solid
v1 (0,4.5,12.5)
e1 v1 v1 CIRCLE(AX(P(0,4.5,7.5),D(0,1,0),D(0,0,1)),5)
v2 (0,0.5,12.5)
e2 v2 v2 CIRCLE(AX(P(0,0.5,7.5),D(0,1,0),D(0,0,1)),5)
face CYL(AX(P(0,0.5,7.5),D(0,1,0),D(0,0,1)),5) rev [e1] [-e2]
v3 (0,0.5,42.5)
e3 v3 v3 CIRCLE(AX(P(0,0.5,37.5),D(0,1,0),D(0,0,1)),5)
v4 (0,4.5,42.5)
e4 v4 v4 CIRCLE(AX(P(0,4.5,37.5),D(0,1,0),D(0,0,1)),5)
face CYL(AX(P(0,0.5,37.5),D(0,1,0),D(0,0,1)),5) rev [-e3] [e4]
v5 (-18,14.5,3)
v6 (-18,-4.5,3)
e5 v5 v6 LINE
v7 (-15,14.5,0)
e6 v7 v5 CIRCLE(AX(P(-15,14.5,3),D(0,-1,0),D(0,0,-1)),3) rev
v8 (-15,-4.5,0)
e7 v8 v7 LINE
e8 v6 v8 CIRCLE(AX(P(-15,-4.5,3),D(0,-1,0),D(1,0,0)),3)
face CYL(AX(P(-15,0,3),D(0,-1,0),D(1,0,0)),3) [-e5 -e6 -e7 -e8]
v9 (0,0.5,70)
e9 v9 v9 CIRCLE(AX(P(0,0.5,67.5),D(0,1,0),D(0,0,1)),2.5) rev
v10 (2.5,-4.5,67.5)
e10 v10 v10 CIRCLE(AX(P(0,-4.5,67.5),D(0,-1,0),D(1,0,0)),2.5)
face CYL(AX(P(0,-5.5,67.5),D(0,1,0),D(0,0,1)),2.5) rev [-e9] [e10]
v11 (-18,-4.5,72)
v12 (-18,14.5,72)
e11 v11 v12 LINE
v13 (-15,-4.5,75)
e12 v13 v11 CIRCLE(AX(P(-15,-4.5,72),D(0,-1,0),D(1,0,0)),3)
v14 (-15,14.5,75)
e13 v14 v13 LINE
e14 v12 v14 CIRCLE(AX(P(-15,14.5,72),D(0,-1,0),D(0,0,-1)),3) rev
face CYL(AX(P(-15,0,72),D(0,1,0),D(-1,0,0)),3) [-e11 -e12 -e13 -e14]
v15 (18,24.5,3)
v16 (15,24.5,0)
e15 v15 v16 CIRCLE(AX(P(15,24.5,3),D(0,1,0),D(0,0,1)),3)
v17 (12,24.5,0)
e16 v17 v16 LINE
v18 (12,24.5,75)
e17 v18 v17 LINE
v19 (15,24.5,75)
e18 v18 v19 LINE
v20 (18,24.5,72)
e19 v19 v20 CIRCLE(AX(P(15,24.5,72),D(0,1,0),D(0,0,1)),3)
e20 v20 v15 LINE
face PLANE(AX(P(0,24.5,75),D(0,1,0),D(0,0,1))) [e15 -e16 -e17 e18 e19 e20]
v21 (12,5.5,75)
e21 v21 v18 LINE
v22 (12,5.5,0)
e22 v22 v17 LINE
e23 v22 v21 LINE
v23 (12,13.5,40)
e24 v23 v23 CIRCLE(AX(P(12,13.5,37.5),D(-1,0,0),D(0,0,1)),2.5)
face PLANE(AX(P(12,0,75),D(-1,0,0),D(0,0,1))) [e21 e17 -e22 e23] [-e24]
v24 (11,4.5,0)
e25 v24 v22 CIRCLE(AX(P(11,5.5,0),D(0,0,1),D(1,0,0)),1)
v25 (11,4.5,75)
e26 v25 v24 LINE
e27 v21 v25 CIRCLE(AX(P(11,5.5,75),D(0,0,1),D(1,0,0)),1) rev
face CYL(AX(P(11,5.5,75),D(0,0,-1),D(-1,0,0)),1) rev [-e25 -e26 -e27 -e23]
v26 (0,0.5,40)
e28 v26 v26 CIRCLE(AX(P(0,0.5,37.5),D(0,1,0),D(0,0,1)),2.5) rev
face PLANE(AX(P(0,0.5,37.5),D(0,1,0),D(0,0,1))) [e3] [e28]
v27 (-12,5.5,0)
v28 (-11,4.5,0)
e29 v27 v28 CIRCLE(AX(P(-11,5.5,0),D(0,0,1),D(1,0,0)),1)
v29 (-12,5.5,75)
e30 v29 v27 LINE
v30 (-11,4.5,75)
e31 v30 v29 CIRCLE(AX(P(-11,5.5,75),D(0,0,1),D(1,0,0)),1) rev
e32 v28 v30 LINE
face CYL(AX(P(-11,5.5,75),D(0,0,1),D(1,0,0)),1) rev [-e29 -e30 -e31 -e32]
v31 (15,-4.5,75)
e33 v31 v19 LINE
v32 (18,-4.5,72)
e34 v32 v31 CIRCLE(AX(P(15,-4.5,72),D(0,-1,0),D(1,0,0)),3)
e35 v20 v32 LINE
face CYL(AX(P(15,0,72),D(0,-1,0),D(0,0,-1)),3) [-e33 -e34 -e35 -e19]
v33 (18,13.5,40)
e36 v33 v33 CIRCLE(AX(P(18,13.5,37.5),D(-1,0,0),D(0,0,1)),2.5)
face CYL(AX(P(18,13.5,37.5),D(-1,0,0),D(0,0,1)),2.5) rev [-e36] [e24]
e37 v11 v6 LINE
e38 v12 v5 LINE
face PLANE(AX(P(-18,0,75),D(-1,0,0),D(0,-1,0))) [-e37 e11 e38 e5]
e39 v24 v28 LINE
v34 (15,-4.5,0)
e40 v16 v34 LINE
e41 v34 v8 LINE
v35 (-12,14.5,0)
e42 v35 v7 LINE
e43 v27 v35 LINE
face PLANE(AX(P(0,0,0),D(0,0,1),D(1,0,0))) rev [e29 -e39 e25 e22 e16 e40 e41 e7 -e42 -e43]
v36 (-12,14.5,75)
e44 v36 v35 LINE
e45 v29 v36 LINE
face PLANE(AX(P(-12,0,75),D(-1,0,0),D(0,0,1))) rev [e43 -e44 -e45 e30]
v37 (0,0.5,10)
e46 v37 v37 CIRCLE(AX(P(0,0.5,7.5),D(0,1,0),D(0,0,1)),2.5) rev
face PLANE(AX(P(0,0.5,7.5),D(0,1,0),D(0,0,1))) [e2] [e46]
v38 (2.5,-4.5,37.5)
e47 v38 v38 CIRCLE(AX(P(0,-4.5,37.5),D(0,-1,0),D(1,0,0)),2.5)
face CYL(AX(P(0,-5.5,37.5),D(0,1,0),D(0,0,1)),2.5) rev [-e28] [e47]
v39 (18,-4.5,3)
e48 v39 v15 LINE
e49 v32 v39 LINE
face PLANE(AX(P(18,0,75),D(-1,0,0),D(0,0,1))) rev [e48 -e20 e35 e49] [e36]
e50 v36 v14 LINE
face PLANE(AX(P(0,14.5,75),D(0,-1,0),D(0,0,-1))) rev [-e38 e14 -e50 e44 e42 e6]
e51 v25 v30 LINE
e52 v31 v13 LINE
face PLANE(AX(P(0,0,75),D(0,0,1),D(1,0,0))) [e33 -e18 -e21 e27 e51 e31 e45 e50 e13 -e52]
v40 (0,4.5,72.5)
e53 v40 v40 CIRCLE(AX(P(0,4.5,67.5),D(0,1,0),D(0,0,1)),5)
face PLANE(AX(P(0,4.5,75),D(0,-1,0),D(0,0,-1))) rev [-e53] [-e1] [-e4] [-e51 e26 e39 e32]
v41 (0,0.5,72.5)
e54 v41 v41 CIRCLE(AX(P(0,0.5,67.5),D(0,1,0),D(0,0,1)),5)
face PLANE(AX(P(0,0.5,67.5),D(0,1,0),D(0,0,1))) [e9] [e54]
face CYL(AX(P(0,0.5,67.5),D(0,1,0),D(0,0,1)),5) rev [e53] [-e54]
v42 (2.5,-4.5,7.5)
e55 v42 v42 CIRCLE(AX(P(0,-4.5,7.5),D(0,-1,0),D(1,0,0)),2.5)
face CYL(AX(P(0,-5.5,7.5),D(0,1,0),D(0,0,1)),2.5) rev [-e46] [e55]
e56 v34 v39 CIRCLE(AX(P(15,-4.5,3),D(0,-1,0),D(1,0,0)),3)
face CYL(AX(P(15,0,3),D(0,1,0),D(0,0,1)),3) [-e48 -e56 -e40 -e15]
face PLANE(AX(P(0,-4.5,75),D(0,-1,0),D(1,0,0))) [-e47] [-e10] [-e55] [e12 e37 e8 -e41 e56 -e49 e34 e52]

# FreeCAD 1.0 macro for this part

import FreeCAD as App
import Part
import Sketcher
from FreeCAD import Vector
Q = App.Units.Quantity


def edges_at(feature, points):
    """Names of the edges that pass closest to the given points."""
    edges = feature.Shape.Edges
    near = lambda p: min(range(len(edges)), key=lambda i: edges[i].distToShape(Part.Vertex(*p))[0])
    return sorted({f"Edge{near(p) + 1}" for p in points})

doc = App.newDocument("Part")
body = doc.addObject("PartDesign::Body", "Body")

# Sketch on XY plane
sketch1 = doc.addObject("Sketcher::SketchObject", "Sketch")
body.addObject(sketch1)
sketch1.AttachmentSupport = (doc.XY_Plane, [""])
sketch1.MapMode = "FlatFace"
sketch1.addGeometry(Part.LineSegment(Vector(-18, -4, 0), Vector(18, -4, 0)), False)
sketch1.addGeometry(Part.LineSegment(Vector(18, -4, 0), Vector(18, 24, 0)), False)
sketch1.addGeometry(Part.LineSegment(Vector(18, 24, 0), Vector(12, 24, 0)), False)
sketch1.addGeometry(Part.LineSegment(Vector(12, 24, 0), Vector(12, 4, 0)), False)
sketch1.addGeometry(Part.LineSegment(Vector(12, 4, 0), Vector(-12, 4, 0)), False)
sketch1.addGeometry(Part.LineSegment(Vector(-12, 4, 0), Vector(-12, 14, 0)), False)
sketch1.addGeometry(Part.LineSegment(Vector(-12, 14, 0), Vector(-18, 14, 0)), False)
sketch1.addGeometry(Part.LineSegment(Vector(-18, 14, 0), Vector(-18, -4, 0)), False)
sketch1.addConstraint(Sketcher.Constraint("Coincident", 0, 2, 1, 1))
sketch1.addConstraint(Sketcher.Constraint("Coincident", 1, 2, 2, 1))
sketch1.addConstraint(Sketcher.Constraint("Coincident", 2, 2, 3, 1))
sketch1.addConstraint(Sketcher.Constraint("Coincident", 3, 2, 4, 1))
sketch1.addConstraint(Sketcher.Constraint("Coincident", 4, 2, 5, 1))
sketch1.addConstraint(Sketcher.Constraint("Coincident", 5, 2, 6, 1))
sketch1.addConstraint(Sketcher.Constraint("Coincident", 6, 2, 7, 1))
sketch1.addConstraint(Sketcher.Constraint("Coincident", 7, 2, 0, 1))
sketch1.addConstraint(Sketcher.Constraint("Horizontal", 0))
sketch1.addConstraint(Sketcher.Constraint("Vertical", 1))
sketch1.addConstraint(Sketcher.Constraint("Horizontal", 2))
sketch1.addConstraint(Sketcher.Constraint("Vertical", 3))
sketch1.addConstraint(Sketcher.Constraint("Horizontal", 4))
sketch1.addConstraint(Sketcher.Constraint("Vertical", 5))
sketch1.addConstraint(Sketcher.Constraint("Horizontal", 6))
sketch1.addConstraint(Sketcher.Constraint("Vertical", 7))
sketch1.addConstraint(Sketcher.Constraint("Equal", 2, 6))
sketch1.addConstraint(Sketcher.Constraint("DistanceX", 0, 1, 0, 2, Q("36 mm")))
sketch1.addConstraint(Sketcher.Constraint("DistanceX", 2, 2, 2, 1, Q("6 mm")))
sketch1.addConstraint(Sketcher.Constraint("DistanceY", 1, 1, 1, 2, Q("29 mm")))
sketch1.addConstraint(Sketcher.Constraint("DistanceY", 3, 2, 3, 1, Q("20 mm")))
sketch1.addConstraint(Sketcher.Constraint("DistanceY", 5, 1, 5, 2, Q("10 mm")))
sketch1.addConstraint(Sketcher.Constraint("DistanceX", -1, 1, 0, 2, Q("18 mm")))
sketch1.addConstraint(Sketcher.Constraint("DistanceY", 0, 2, -1, 1, Q("4.5 mm")))
pad1 = doc.addObject("PartDesign::Pad", "Pad")
body.addObject(pad1)
pad1.Profile = sketch1
pad1.Length = 75
doc.recompute()

fillet = doc.addObject("PartDesign::Fillet", "Fillet")
body.addObject(fillet)
fillet.Base = (pad1, edges_at(pad1, [(-12, 4.5, 37.5), (12, 4.5, 37.5)]))
fillet.Radius = 1
doc.recompute()

fillet2 = doc.addObject("PartDesign::Fillet", "Fillet001")
body.addObject(fillet2)
fillet2.Base = (fillet, edges_at(fillet, [
    (18, 10, 0),
    (-18, 5, 0),
    (18, 10, 75),
    (-18, 5, 75),
]))
fillet2.Radius = 3

# Sketch on YZ plane
sketch2 = doc.addObject("Sketcher::SketchObject", "Sketch001")
body.addObject(sketch2)
sketch2.AttachmentSupport = (doc.YZ_Plane, [""])
sketch2.MapMode = "FlatFace"
sketch2.AttachmentOffset = App.Placement(Vector(0, 0, 12), App.Rotation())
sketch2.addGeometry(Part.Circle(Vector(13.5, 37.5, 0), Vector(0, 0, 1), 2.5), False)
sketch2.addConstraint(Sketcher.Constraint("Diameter", 0, Q("5 mm")))
sketch2.addConstraint(Sketcher.Constraint("DistanceX", -1, 1, 0, 3, Q("13.5 mm")))
sketch2.addConstraint(Sketcher.Constraint("DistanceY", -1, 1, 0, 3, Q("37.5 mm")))
pocket1 = doc.addObject("PartDesign::Pocket", "Pocket")
body.addObject(pocket1)
pocket1.Profile = sketch2
pocket1.Length = 6
pocket1.Reversed = True

# Sketch on XZ plane
sketch3 = doc.addObject("Sketcher::SketchObject", "Sketch002")
body.addObject(sketch3)
sketch3.AttachmentSupport = (doc.XZ_Plane, [""])
sketch3.MapMode = "FlatFace"
sketch3.AttachmentOffset = App.Placement(Vector(0, 0, -4.5), App.Rotation())
sketch3.addGeometry(Part.Circle(Vector(0, 37.5, 0), Vector(0, 0, 1), 2.5), False)
sketch3.addGeometry(Part.Circle(Vector(0, 7.5, 0), Vector(0, 0, 1), 2.5), False)
sketch3.addGeometry(Part.Circle(Vector(0, 67.5, 0), Vector(0, 0, 1), 2.5), False)
sketch3.addConstraint(Sketcher.Constraint("Equal", 0, 1))
sketch3.addConstraint(Sketcher.Constraint("Equal", 1, 2))
sketch3.addConstraint(Sketcher.Constraint("PointOnObject", 0, 3, -2))
sketch3.addConstraint(Sketcher.Constraint("PointOnObject", 1, 3, -2))
sketch3.addConstraint(Sketcher.Constraint("PointOnObject", 2, 3, -2))
sketch3.addConstraint(Sketcher.Constraint("Diameter", 0, Q("5 mm")))
sketch3.addConstraint(Sketcher.Constraint("DistanceY", 1, 3, 0, 3, Q("30 mm")))
sketch3.addConstraint(Sketcher.Constraint("DistanceY", 0, 3, 2, 3, Q("30 mm")))
sketch3.addConstraint(Sketcher.Constraint("DistanceY", -1, 1, 0, 3, Q("37.5 mm")))
pocket2 = doc.addObject("PartDesign::Pocket", "Pocket001")
body.addObject(pocket2)
pocket2.Profile = sketch3
pocket2.Length = 10
pocket2.Reversed = True

# Sketch on XZ plane
sketch4 = doc.addObject("Sketcher::SketchObject", "Sketch003")
body.addObject(sketch4)
sketch4.AttachmentSupport = (doc.XZ_Plane, [""])
sketch4.MapMode = "FlatFace"
sketch4.AttachmentOffset = App.Placement(Vector(0, 0, -4.5), App.Rotation())
sketch4.addGeometry(Part.Circle(Vector(0, 8, 0), Vector(0, 0, 1), 5), False)
sketch4.addGeometry(Part.Circle(Vector(0, 38, 0), Vector(0, 0, 1), 5), False)
sketch4.addGeometry(Part.Circle(Vector(0, 68, 0), Vector(0, 0, 1), 5), False)
sketch4.addConstraint(Sketcher.Constraint("Equal", 0, 1))
sketch4.addConstraint(Sketcher.Constraint("Equal", 1, 2))
sketch4.addConstraint(Sketcher.Constraint("PointOnObject", 0, 3, -2))
sketch4.addConstraint(Sketcher.Constraint("PointOnObject", 1, 3, -2))
sketch4.addConstraint(Sketcher.Constraint("PointOnObject", 2, 3, -2))
sketch4.addConstraint(Sketcher.Constraint("Diameter", 0, Q("10 mm")))
sketch4.addConstraint(Sketcher.Constraint("DistanceY", 0, 3, 1, 3, Q("30 mm")))
sketch4.addConstraint(Sketcher.Constraint("DistanceY", 1, 3, 2, 3, Q("30 mm")))
sketch4.addConstraint(Sketcher.Constraint("DistanceY", -1, 1, 0, 3, Q("7.5 mm")))
pocket3 = doc.addObject("PartDesign::Pocket", "Pocket002")
body.addObject(pocket3)
pocket3.Profile = sketch4
pocket3.Length = 4
pocket3.Reversed = True

doc.recompute()
